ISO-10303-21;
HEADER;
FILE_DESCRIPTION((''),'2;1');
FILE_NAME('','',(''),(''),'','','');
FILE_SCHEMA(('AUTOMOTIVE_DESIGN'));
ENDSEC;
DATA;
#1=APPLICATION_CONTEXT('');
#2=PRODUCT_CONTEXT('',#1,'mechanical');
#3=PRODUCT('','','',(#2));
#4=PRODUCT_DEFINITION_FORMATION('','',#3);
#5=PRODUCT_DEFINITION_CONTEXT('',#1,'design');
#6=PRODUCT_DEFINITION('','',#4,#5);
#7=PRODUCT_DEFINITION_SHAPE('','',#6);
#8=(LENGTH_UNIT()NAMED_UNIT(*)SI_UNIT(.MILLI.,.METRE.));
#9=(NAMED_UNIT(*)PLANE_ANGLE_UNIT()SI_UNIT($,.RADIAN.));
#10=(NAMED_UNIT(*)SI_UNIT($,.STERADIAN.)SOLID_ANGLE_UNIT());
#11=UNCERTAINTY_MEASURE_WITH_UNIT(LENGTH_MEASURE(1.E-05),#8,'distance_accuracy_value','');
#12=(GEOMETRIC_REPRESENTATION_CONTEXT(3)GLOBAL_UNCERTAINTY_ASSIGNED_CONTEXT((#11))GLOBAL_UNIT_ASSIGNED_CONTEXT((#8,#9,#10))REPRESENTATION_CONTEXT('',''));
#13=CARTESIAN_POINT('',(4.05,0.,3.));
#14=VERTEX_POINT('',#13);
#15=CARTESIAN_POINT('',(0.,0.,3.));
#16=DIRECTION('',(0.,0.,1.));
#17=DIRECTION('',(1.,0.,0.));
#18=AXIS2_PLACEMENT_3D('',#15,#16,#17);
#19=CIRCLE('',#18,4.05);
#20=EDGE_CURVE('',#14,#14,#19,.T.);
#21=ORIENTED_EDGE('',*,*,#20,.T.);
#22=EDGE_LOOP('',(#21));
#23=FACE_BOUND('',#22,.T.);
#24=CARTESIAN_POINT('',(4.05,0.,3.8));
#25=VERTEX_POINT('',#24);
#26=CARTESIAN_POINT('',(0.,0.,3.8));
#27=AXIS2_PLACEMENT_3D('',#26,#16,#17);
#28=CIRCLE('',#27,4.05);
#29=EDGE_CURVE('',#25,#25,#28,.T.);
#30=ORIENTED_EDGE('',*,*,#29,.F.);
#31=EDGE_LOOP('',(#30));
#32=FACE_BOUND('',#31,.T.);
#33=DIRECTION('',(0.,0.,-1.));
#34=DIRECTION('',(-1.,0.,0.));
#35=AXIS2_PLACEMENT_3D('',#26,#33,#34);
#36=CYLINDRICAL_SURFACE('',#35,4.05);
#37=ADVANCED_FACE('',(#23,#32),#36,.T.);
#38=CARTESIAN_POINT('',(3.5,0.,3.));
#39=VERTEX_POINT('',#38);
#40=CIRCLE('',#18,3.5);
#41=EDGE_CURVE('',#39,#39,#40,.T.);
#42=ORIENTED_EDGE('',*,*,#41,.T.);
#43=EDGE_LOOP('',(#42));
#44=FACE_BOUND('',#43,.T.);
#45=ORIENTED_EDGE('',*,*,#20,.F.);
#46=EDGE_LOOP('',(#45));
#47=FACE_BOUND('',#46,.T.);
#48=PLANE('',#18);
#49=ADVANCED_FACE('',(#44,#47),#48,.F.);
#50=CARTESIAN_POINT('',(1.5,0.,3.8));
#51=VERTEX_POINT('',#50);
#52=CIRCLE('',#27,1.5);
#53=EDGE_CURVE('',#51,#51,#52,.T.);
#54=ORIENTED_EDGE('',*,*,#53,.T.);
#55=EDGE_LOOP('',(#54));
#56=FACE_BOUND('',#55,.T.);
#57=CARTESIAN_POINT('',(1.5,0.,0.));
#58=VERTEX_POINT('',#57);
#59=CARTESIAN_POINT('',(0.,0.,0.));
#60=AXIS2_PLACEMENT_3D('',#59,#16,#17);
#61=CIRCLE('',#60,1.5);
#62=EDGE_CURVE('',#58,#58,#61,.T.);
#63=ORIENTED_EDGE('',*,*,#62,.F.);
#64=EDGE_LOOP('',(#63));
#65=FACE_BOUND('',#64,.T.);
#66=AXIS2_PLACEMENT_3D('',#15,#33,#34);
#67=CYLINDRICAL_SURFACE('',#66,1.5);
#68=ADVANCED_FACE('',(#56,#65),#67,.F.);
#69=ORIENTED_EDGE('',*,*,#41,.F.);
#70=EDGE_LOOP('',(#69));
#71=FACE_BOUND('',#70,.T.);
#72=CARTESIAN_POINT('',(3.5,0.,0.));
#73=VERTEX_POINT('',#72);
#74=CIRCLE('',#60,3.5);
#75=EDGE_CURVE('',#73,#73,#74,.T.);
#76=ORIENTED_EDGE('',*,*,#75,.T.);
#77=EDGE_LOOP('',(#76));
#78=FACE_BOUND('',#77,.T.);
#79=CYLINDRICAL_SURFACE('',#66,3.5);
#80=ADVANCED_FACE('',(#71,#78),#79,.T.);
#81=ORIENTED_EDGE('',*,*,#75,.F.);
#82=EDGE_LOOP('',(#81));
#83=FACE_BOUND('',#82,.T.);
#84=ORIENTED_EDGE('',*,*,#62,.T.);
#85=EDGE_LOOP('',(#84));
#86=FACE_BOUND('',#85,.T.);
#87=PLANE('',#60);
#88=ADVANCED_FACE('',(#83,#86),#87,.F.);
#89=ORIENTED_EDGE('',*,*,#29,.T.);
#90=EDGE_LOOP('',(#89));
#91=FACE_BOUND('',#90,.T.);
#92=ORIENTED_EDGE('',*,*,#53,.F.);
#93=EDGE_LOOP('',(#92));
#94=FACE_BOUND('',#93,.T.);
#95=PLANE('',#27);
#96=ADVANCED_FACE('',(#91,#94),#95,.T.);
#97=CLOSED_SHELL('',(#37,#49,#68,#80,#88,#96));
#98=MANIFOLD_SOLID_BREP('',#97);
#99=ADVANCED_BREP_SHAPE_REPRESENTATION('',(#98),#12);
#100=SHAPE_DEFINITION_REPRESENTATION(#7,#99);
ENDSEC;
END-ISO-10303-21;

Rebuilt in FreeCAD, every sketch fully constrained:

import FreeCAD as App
import Part
import Sketcher
from FreeCAD import Vector
Q = App.Units.Quantity

doc = App.newDocument("Part")
body = doc.addObject("PartDesign::Body", "Body")

sketch1 = doc.addObject("Sketcher::SketchObject", "Sketch")
body.addObject(sketch1)
sketch1.AttachmentSupport = (doc.XY_Plane, [""])
sketch1.MapMode = "FlatFace"
sketch1.addGeometry(Part.Circle(Vector(0, 0, 0), Vector(0, 0, 1), 3.5), False)
sketch1.addGeometry(Part.Circle(Vector(0, 0, 0), Vector(0, 0, 1), 1.5), False)
sketch1.addConstraint(Sketcher.Constraint("Coincident", 0, 3, -1, 1))
sketch1.addConstraint(Sketcher.Constraint("Coincident", 1, 3, -1, 1))
sketch1.addConstraint(Sketcher.Constraint("Diameter", 0, Q("7 mm")))
sketch1.addConstraint(Sketcher.Constraint("Diameter", 1, Q("3 mm")))
pad1 = doc.addObject("PartDesign::Pad", "Pad")
body.addObject(pad1)
pad1.Profile = sketch1
pad1.Length = 3

sketch2 = doc.addObject("Sketcher::SketchObject", "Sketch001")
body.addObject(sketch2)
sketch2.AttachmentSupport = (doc.XY_Plane, [""])
sketch2.MapMode = "FlatFace"
sketch2.AttachmentOffset = App.Placement(Vector(0, 0, 3), App.Rotation())
sketch2.addGeometry(Part.Circle(Vector(0, 0, 0), Vector(0, 0, 1), 4), False)
sketch2.addGeometry(Part.Circle(Vector(0, 0, 0), Vector(0, 0, 1), 1.5), False)
sketch2.addConstraint(Sketcher.Constraint("Coincident", 0, 3, -1, 1))
sketch2.addConstraint(Sketcher.Constraint("Coincident", 1, 3, -1, 1))
sketch2.addConstraint(Sketcher.Constraint("Diameter", 1, Q("3 mm")))
sketch2.addConstraint(Sketcher.Constraint("Diameter", 0, Q("8.1 mm")))
pad2 = doc.addObject("PartDesign::Pad", "Pad001")
body.addObject(pad2)
pad2.Profile = sketch2
pad2.Length = 0.8

doc.recompute()
